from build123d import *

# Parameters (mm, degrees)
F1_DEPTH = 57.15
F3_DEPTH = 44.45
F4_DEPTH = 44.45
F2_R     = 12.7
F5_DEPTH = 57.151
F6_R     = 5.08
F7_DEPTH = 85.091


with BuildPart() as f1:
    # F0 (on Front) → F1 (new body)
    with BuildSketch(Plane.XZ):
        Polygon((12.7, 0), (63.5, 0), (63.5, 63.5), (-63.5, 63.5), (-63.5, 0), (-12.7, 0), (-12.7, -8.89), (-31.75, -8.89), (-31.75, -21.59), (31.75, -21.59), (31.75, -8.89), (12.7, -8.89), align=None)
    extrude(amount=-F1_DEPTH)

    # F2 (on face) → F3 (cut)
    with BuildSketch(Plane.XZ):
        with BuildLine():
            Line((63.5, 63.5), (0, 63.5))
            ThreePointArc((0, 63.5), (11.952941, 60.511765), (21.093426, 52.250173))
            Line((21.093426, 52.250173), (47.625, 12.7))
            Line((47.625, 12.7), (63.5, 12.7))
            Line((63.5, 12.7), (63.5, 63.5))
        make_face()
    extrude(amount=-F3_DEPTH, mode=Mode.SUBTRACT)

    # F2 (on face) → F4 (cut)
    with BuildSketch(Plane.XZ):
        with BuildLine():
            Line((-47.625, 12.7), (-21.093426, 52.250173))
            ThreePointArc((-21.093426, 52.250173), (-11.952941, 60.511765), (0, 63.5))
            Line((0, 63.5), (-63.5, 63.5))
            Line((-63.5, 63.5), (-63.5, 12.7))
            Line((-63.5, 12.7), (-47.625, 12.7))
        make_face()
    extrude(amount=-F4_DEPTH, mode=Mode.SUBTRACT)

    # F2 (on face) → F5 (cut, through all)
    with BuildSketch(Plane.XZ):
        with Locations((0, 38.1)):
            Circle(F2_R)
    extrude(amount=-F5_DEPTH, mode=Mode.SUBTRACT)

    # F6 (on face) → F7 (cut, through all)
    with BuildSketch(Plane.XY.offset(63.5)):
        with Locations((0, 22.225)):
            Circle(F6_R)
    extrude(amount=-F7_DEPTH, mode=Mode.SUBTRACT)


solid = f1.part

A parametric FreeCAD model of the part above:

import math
import FreeCAD as App
import Part
import Sketcher
Q = App.Units.Quantity

doc = App.newDocument("Part")
body = doc.addObject("PartDesign::Body", "Body")

# Sketch on XZ plane
sketch1 = body.newObject("Sketcher::SketchObject", "Sketch")
sketch1.AttachmentSupport = (doc.getObject("XZ_Plane"), [""])
sketch1.MapMode = "FlatFace"
sketch1.addGeometry([
    Part.LineSegment(App.Vector(13, 0, 0), App.Vector(64, 0, 0)),  # 0
    Part.LineSegment(App.Vector(64, 0, 0), App.Vector(64, 64, 0)),  # 1
    Part.LineSegment(App.Vector(64, 64, 0), App.Vector(-64, 64, 0)),  # 2
    Part.LineSegment(App.Vector(-64, 64, 0), App.Vector(-64, 0, 0)),  # 3
    Part.LineSegment(App.Vector(-64, 0, 0), App.Vector(-13, 0, 0)),  # 4
    Part.LineSegment(App.Vector(-13, 0, 0), App.Vector(-13, -9, 0)),  # 5
    Part.LineSegment(App.Vector(-13, -9, 0), App.Vector(-32, -9, 0)),  # 6
    Part.LineSegment(App.Vector(-32, -9, 0), App.Vector(-32, -22, 0)),  # 7
    Part.LineSegment(App.Vector(-32, -22, 0), App.Vector(32, -22, 0)),  # 8
    Part.LineSegment(App.Vector(32, -22, 0), App.Vector(32, -9, 0)),  # 9
    Part.LineSegment(App.Vector(32, -9, 0), App.Vector(13, -9, 0)),  # 10
    Part.LineSegment(App.Vector(13, -9, 0), App.Vector(13, 0, 0)),  # 11
], False)
sketch1.addConstraint([
    Sketcher.Constraint("Coincident", 0, 2, 1, 1),
    Sketcher.Constraint("Coincident", 1, 2, 2, 1),
    Sketcher.Constraint("Coincident", 2, 2, 3, 1),
    Sketcher.Constraint("Coincident", 3, 2, 4, 1),
    Sketcher.Constraint("Coincident", 4, 2, 5, 1),
    Sketcher.Constraint("Coincident", 5, 2, 6, 1),
    Sketcher.Constraint("Coincident", 6, 2, 7, 1),
    Sketcher.Constraint("Coincident", 7, 2, 8, 1),
    Sketcher.Constraint("Coincident", 8, 2, 9, 1),
    Sketcher.Constraint("Coincident", 9, 2, 10, 1),
    Sketcher.Constraint("Coincident", 10, 2, 11, 1),
    Sketcher.Constraint("Coincident", 11, 2, 0, 1),
    Sketcher.Constraint("Horizontal", 0),
    Sketcher.Constraint("Vertical", 1),
    Sketcher.Constraint("Horizontal", 2),
    Sketcher.Constraint("Vertical", 3),
    Sketcher.Constraint("Horizontal", 4),
    Sketcher.Constraint("Vertical", 5),
    Sketcher.Constraint("Horizontal", 6),
    Sketcher.Constraint("Vertical", 7),
    Sketcher.Constraint("Horizontal", 8),
    Sketcher.Constraint("Vertical", 9),
    Sketcher.Constraint("Horizontal", 10),
    Sketcher.Constraint("Vertical", 11),
    Sketcher.Constraint("Symmetric", 0, 2, 3, 2, -1, 1),
    Sketcher.Constraint("Symmetric", 6, 2, 9, 2, -2),
    Sketcher.Constraint("Symmetric", 4, 2, 11, 2, -2),
    Sketcher.Constraint("Equal", 8, 1),
    Sketcher.Constraint("DistanceX", 0, 1, 0, 2, Q("2 in")),
    Sketcher.Constraint("DistanceX", 2, 2, 2, 1, Q("5 in")),
    Sketcher.Constraint("DistanceX", 8, 1, 8, 2, Q("2.5 in")),
    Sketcher.Constraint("DistanceY", 7, 2, 7, 1, Q("0.5 in")),
    Sketcher.Constraint("DistanceY", 5, 2, 5, 1, Q("0.35 in")),
])
pad1 = body.newObject("PartDesign::Pad", "Pad")
pad1.Profile = sketch1
pad1.Length = Q("2.25 in")
pad1.Reversed = True

# Sketch on XZ plane
sketch2 = body.newObject("Sketcher::SketchObject", "Sketch001")
sketch2.AttachmentSupport = (doc.getObject("XZ_Plane"), [""])
sketch2.MapMode = "FlatFace"
sketch2.addGeometry([
    Part.LineSegment(App.Vector(64, 64, 0), App.Vector(0, 64, 0)),  # 0
    Part.ArcOfCircle(Part.Circle(App.Vector(0, 38, 0), App.Vector(0, 0, 1), 25), math.radians(34), math.radians(90)),  # 1
    Part.LineSegment(App.Vector(21, 52, 0), App.Vector(48, 13, 0)),  # 2
    Part.LineSegment(App.Vector(48, 13, 0), App.Vector(64, 13, 0)),  # 3
    Part.LineSegment(App.Vector(64, 13, 0), App.Vector(64, 64, 0)),  # 4
], False)
sketch2.addConstraint([
    Sketcher.Constraint("Tangent", 0, 2, 1, 2),
    Sketcher.Constraint("Tangent", 1, 1, 2, 1),
    Sketcher.Constraint("Coincident", 2, 2, 3, 1),
    Sketcher.Constraint("Coincident", 3, 2, 4, 1),
    Sketcher.Constraint("Coincident", 4, 2, 0, 1),
    Sketcher.Constraint("Horizontal", 0),
    Sketcher.Constraint("Horizontal", 3),
    Sketcher.Constraint("Vertical", 4),
    Sketcher.Constraint("PointOnObject", 1, 3, -2),
    Sketcher.Constraint("Radius", 1, Q("1 in")),
    Sketcher.Constraint("DistanceY", 4, 1, 4, 2, Q("2 in")),
    Sketcher.Constraint("DistanceX", 0, 2, 0, 1, Q("2.5 in")),
    Sketcher.Constraint("DistanceY", -1, 1, 1, 3, Q("1.5 in")),
    Sketcher.Constraint("DistanceX", 3, 1, 3, 2, Q("0.625 in")),
])
pocket1 = body.newObject("PartDesign::Pocket", "Pocket")
pocket1.Profile = sketch2
pocket1.Length = Q("1.75 in")

# Sketch on XZ plane
sketch3 = body.newObject("Sketcher::SketchObject", "Sketch002")
sketch3.AttachmentSupport = (doc.getObject("XZ_Plane"), [""])
sketch3.MapMode = "FlatFace"
sketch3.addGeometry([
    Part.LineSegment(App.Vector(-48, 13, 0), App.Vector(-21, 52, 0)),  # 0
    Part.ArcOfCircle(Part.Circle(App.Vector(0, 38, 0), App.Vector(0, 0, 1), 25), math.radians(90), math.radians(146)),  # 1
    Part.LineSegment(App.Vector(0, 64, 0), App.Vector(-64, 64, 0)),  # 2
    Part.LineSegment(App.Vector(-64, 64, 0), App.Vector(-64, 13, 0)),  # 3
    Part.LineSegment(App.Vector(-64, 13, 0), App.Vector(-48, 13, 0)),  # 4
], False)
sketch3.addConstraint([
    Sketcher.Constraint("Tangent", 0, 2, 1, 2),
    Sketcher.Constraint("Tangent", 1, 1, 2, 1),
    Sketcher.Constraint("Coincident", 2, 2, 3, 1),
    Sketcher.Constraint("Coincident", 3, 2, 4, 1),
    Sketcher.Constraint("Coincident", 4, 2, 0, 1),
    Sketcher.Constraint("Horizontal", 2),
    Sketcher.Constraint("Vertical", 3),
    Sketcher.Constraint("Horizontal", 4),
    Sketcher.Constraint("PointOnObject", 1, 3, -2),
    Sketcher.Constraint("Radius", 1, Q("1 in")),
    Sketcher.Constraint("DistanceY", 3, 2, 3, 1, Q("2 in")),
    Sketcher.Constraint("DistanceX", 2, 2, 2, 1, Q("2.5 in")),
    Sketcher.Constraint("DistanceY", -1, 1, 1, 3, Q("1.5 in")),
    Sketcher.Constraint("DistanceX", 4, 1, 4, 2, Q("0.625 in")),
])
pocket2 = body.newObject("PartDesign::Pocket", "Pocket001")
pocket2.Profile = sketch3
pocket2.Length = Q("1.75 in")

# Sketch on XZ plane
sketch4 = body.newObject("Sketcher::SketchObject", "Sketch003")
sketch4.AttachmentSupport = (doc.getObject("XZ_Plane"), [""])
sketch4.MapMode = "FlatFace"
sketch4.addGeometry(Part.Circle(App.Vector(0, 38, 0), App.Vector(0, 0, 1), 13), False)
sketch4.addConstraint([
    Sketcher.Constraint("PointOnObject", 0, 3, -2),
    Sketcher.Constraint("Diameter", 0, Q("1 in")),
    Sketcher.Constraint("DistanceY", -1, 1, 0, 3, Q("1.5 in")),
])
pocket3 = body.newObject("PartDesign::Pocket", "Pocket002")
pocket3.Profile = sketch4
pocket3.Type = "ThroughAll"

# Sketch on XY plane
sketch5 = body.newObject("Sketcher::SketchObject", "Sketch004")
sketch5.AttachmentSupport = (doc.getObject("XY_Plane"), [""])
sketch5.MapMode = "FlatFace"
sketch5.AttachmentOffset = App.Placement(App.Vector(0, 0, 2.5 * 25.4), App.Rotation())
sketch5.addGeometry(Part.Circle(App.Vector(0, 22, 0), App.Vector(0, 0, 1), 5), False)
sketch5.addConstraint([
    Sketcher.Constraint("PointOnObject", 0, 3, -2),
    Sketcher.Constraint("Diameter", 0, Q("0.4 in")),
    Sketcher.Constraint("DistanceY", -1, 1, 0, 3, Q("0.875 in")),
])
pocket4 = body.newObject("PartDesign::Pocket", "Pocket003")
pocket4.Profile = sketch5
pocket4.Type = "ThroughAll"

doc.recompute()
